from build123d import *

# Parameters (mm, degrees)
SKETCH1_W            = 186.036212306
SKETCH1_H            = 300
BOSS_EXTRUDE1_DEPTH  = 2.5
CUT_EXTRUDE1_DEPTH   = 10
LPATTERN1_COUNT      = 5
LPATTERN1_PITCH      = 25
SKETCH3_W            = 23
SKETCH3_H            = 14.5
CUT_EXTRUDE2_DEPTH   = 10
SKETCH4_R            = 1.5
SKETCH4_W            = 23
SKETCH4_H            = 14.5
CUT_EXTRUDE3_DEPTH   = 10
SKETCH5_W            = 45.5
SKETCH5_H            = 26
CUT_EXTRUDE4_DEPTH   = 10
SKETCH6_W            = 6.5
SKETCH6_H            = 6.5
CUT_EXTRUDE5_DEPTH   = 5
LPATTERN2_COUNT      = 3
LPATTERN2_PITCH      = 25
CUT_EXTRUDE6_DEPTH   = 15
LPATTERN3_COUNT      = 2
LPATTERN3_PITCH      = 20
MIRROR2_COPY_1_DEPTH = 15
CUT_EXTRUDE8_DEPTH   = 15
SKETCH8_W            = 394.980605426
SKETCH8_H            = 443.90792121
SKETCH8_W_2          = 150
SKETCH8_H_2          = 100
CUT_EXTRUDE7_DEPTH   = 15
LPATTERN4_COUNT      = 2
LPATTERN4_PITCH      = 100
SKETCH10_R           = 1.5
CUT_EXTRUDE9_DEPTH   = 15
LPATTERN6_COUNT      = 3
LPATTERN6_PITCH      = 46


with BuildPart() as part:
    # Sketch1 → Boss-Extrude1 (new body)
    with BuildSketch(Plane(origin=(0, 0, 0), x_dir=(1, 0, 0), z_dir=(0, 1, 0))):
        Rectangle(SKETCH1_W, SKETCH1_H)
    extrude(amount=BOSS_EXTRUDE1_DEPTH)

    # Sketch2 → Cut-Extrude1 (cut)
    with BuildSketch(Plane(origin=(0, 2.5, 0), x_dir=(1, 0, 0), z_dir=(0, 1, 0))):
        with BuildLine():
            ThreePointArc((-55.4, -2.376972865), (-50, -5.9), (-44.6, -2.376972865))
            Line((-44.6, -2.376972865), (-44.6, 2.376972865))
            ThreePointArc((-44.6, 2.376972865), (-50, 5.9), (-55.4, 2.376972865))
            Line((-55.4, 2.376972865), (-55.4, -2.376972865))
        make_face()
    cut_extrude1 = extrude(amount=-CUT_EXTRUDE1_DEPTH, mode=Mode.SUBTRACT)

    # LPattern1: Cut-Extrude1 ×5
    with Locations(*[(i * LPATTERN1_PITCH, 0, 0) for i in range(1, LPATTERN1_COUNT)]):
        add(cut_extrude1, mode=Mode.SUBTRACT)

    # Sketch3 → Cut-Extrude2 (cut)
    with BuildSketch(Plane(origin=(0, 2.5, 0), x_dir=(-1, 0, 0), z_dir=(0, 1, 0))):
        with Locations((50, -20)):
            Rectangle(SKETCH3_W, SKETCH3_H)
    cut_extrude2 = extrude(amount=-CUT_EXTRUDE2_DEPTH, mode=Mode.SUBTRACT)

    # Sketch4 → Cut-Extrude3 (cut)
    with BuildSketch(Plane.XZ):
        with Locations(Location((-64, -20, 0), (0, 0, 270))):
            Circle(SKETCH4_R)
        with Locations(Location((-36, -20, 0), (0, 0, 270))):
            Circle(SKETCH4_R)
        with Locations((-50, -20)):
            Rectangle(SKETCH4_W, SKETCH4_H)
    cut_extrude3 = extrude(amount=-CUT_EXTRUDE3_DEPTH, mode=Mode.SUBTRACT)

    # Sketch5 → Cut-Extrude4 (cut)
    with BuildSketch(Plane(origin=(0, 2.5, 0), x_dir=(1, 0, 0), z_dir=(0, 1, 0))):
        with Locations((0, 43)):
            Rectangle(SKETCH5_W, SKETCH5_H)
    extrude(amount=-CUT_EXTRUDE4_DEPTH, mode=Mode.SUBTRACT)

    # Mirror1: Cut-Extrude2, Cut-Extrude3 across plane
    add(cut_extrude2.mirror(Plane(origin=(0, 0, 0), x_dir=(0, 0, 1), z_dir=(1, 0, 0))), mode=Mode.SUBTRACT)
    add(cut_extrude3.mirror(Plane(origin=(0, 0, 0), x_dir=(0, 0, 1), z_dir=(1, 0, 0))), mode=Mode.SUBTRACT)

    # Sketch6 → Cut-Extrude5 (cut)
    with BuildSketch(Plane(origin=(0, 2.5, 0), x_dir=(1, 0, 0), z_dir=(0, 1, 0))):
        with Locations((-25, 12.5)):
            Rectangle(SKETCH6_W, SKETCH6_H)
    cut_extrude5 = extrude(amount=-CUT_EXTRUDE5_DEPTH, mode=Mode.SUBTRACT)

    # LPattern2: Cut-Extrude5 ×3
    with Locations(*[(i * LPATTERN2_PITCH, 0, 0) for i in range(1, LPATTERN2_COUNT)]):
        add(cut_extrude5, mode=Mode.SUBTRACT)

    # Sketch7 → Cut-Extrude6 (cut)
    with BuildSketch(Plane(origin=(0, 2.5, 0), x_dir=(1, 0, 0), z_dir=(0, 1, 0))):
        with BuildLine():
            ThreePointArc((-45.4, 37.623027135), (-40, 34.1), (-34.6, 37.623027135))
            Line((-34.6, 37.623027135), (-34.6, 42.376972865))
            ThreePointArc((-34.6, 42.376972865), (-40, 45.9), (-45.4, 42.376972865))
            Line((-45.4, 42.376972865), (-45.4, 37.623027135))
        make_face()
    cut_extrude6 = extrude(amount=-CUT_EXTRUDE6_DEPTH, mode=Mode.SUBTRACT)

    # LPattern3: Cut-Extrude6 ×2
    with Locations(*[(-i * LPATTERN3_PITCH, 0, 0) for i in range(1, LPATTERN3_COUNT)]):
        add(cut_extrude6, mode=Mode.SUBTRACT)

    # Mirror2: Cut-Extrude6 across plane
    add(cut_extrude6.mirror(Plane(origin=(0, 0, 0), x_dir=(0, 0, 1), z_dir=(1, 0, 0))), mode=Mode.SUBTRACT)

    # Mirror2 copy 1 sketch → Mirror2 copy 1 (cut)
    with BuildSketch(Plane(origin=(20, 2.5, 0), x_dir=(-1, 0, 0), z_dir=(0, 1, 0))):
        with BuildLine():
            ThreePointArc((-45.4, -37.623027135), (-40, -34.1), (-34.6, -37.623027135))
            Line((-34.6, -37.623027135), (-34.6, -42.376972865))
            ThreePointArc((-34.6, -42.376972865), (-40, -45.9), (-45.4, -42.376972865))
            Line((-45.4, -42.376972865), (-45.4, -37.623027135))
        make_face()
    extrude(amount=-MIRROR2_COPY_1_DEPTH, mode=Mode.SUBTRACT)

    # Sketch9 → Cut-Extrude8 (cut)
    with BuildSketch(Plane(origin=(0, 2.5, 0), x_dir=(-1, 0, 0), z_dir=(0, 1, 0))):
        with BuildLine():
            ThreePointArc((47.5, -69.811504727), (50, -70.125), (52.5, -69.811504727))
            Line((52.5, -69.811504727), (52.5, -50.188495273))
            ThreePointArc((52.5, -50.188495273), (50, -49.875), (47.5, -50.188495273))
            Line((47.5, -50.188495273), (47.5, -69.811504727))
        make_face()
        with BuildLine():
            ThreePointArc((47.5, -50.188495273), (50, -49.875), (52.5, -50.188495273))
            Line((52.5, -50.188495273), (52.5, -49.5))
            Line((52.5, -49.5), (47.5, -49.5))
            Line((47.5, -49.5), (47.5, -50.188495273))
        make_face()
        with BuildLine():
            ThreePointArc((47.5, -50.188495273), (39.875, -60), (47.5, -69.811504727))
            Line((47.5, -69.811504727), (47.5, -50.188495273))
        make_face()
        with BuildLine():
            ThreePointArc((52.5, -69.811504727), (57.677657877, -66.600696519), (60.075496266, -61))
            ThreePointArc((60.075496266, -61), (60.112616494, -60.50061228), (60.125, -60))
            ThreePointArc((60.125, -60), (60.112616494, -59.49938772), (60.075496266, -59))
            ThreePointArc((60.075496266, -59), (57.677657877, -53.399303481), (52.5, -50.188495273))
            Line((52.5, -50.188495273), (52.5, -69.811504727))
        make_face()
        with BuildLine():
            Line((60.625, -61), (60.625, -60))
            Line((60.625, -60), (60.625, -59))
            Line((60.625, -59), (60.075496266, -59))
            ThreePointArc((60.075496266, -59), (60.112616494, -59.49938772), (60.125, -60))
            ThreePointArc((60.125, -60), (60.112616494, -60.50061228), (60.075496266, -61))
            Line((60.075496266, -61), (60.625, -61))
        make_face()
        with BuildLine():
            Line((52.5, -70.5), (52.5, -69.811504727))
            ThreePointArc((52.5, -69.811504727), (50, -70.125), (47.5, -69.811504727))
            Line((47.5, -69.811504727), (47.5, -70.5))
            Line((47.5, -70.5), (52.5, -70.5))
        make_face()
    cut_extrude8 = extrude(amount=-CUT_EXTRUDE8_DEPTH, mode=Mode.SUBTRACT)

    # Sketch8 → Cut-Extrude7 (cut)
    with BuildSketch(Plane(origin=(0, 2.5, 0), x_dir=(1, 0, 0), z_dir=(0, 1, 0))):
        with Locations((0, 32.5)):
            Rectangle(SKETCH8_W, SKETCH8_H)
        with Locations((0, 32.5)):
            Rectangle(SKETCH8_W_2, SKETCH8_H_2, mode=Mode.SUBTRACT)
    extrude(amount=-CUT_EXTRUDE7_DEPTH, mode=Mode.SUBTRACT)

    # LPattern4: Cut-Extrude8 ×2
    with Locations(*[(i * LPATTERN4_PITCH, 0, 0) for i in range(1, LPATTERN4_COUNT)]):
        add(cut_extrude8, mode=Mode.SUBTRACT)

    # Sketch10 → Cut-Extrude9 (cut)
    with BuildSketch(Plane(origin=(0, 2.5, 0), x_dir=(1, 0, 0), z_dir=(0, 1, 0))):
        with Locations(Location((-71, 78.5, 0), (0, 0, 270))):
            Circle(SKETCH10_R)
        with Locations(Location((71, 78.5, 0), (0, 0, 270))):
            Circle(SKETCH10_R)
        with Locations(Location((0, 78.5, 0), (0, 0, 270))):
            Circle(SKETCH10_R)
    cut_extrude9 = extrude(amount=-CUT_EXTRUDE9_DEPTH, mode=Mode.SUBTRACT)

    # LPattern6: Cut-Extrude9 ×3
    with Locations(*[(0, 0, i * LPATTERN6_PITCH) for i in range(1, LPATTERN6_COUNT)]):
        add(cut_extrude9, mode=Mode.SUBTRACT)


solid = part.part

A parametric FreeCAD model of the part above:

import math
import FreeCAD as App
import Part
import Sketcher

V = App.Vector
Q = App.Units.Quantity


def add_polygon(sketch, points):
    """Adds a closed chain of lines whose ends are joined by coincident constraints."""
    first, n = sketch.GeometryCount, len(points)
    for a, b in zip(points, points[1:] + points[:1]):
        sketch.addGeometry(Part.LineSegment(App.Vector(*a, 0), App.Vector(*b, 0)), False)
    for i in range(n):
        sketch.addConstraint(Sketcher.Constraint("Coincident", first + i, 2, first + (i + 1) % n, 1))

doc = App.newDocument("Part")
body = doc.addObject("PartDesign::Body", "Body")

sketch1 = doc.addObject("Sketcher::SketchObject", "Sketch")
body.addObject(sketch1)
sketch1.AttachmentSupport = (doc.XZ_Plane, [""])
sketch1.MapMode = "FlatFace"
add_polygon(sketch1, [(-93, -150), (-93, 150), (93, 150), (93, -150)])
sketch1.addConstraint([
    Sketcher.Constraint("Vertical", 0),
    Sketcher.Constraint("Horizontal", 1),
    Sketcher.Constraint("Vertical", 2),
    Sketcher.Constraint("Horizontal", 3),
    Sketcher.Constraint("Symmetric", 0, 2, 2, 2, -1, 1),
    Sketcher.Constraint("DistanceY", 0, 1, 0, 2, Q("300 mm")),
    Sketcher.Constraint("DistanceX", 1, 1, 1, 2, Q("186.036212 mm")),
])
pad1 = doc.addObject("PartDesign::Pad", "Pad")
body.addObject(pad1)
pad1.Profile = sketch1
pad1.Length = 2.5
pad1.Reversed = True

sketch2 = doc.addObject("Sketcher::SketchObject", "Sketch001")
body.addObject(sketch2)
sketch2.AttachmentSupport = (doc.XZ_Plane, [""])
sketch2.MapMode = "FlatFace"
sketch2.AttachmentOffset = App.Placement(V(0, 0, -2.5), App.Rotation())
sketch2.addGeometry([
    Part.ArcOfCircle(Part.Circle(V(-50, 0, 0), V(0, 0, 1), 5.9), math.radians(24), math.radians(156)),
    Part.LineSegment(V(-44.6, 2.4, 0), V(-44.6, -2.4, 0)),
    Part.ArcOfCircle(Part.Circle(V(-50, 0, 0), V(0, 0, 1), 5.9), math.radians(-156), math.radians(-24)),
    Part.LineSegment(V(-55.4, -2.4, 0), V(-55.4, 2.4, 0)),
], False)
sketch2.addConstraint([
    Sketcher.Constraint("Coincident", 0, 1, 1, 1),
    Sketcher.Constraint("Coincident", 1, 2, 2, 2),
    Sketcher.Constraint("Coincident", 2, 1, 3, 1),
    Sketcher.Constraint("Coincident", 3, 2, 0, 2),
    Sketcher.Constraint("Vertical", 1),
    Sketcher.Constraint("Vertical", 3),
    Sketcher.Constraint("Coincident", 2, 3, 0, 3),
    Sketcher.Constraint("Equal", 0, 2),
    Sketcher.Constraint("PointOnObject", 0, 3, -1),
    Sketcher.Constraint("Horizontal", 1, 2, 2, 1),
    Sketcher.Constraint("Radius", 0, Q("5.9 mm")),
    Sketcher.Constraint("DistanceX", 0, 3, -1, 1, Q("50 mm")),
    Sketcher.Constraint("DistanceX", 0, 1, -1, 1, Q("44.6 mm")),
])
pocket1 = doc.addObject("PartDesign::Pocket", "Pocket")
body.addObject(pocket1)
pocket1.Profile = sketch2
pocket1.Length = 10
pocket1.Reversed = True
doc.recompute()

linearpattern = doc.addObject("PartDesign::LinearPattern", "LinearPattern")
body.addObject(linearpattern)
linearpattern.Originals = [pocket1]
linearpattern.Direction = (doc.X_Axis, [""])
linearpattern.Mode = "offset"
linearpattern.Offset = 25
linearpattern.Occurrences = 5
body.Tip = linearpattern

sketch3 = doc.addObject("Sketcher::SketchObject", "Sketch002")
body.addObject(sketch3)
sketch3.AttachmentSupport = (doc.XZ_Plane, [""])
sketch3.MapMode = "FlatFace"
sketch3.AttachmentOffset = App.Placement(V(0, 0, -2.5), App.Rotation())
add_polygon(sketch3, [(-38, -13), (-38, -27), (-62, -27), (-62, -13)])
sketch3.addConstraint([
    Sketcher.Constraint("Vertical", 0),
    Sketcher.Constraint("Horizontal", 1),
    Sketcher.Constraint("Vertical", 2),
    Sketcher.Constraint("Horizontal", 3),
    Sketcher.Constraint("DistanceX", 1, 2, 1, 1, Q("23 mm")),
    Sketcher.Constraint("DistanceY", 0, 2, 0, 1, Q("14.5 mm")),
    Sketcher.Constraint("DistanceX", 0, 2, -1, 1, Q("38.5 mm")),
    Sketcher.Constraint("DistanceY", 0, 2, -1, 1, Q("27.25 mm")),
])
pocket2 = doc.addObject("PartDesign::Pocket", "Pocket001")
body.addObject(pocket2)
pocket2.Profile = sketch3
pocket2.Length = 10
pocket2.Reversed = True

sketch4 = doc.addObject("Sketcher::SketchObject", "Sketch003")
body.addObject(sketch4)
sketch4.AttachmentSupport = (doc.XZ_Plane, [""])
sketch4.MapMode = "FlatFace"
sketch4.addGeometry(Part.Circle(V(-64, -20, 0), V(0, 0, 1), 1.5), False)
sketch4.addGeometry(Part.Circle(V(-36, -20, 0), V(0, 0, 1), 1.5), False)
add_polygon(sketch4, [(-61.5, -12.8), (-61.5, -27.2), (-38.5, -27.2), (-38.5, -12.8)])
sketch4.addConstraint([
    Sketcher.Constraint("Vertical", 2),
    Sketcher.Constraint("Horizontal", 3),
    Sketcher.Constraint("Vertical", 4),
    Sketcher.Constraint("Horizontal", 5),
    Sketcher.Constraint("Equal", 0, 1),
    Sketcher.Constraint("Horizontal", 0, 3, 1, 3),
    Sketcher.Constraint("Diameter", 0, Q("3 mm")),
    Sketcher.Constraint("DistanceX", 3, 1, 3, 2, Q("23 mm")),
    Sketcher.Constraint("DistanceY", 2, 2, 2, 1, Q("14.5 mm")),
    Sketcher.Constraint("DistanceX", 0, 3, -1, 1, Q("64 mm")),
    Sketcher.Constraint("DistanceY", 0, 3, -1, 1, Q("20 mm")),
    Sketcher.Constraint("DistanceX", 1, 3, -1, 1, Q("36 mm")),
    Sketcher.Constraint("DistanceX", 2, 2, -1, 1, Q("61.5 mm")),
    Sketcher.Constraint("DistanceY", 2, 2, -1, 1, Q("27.25 mm")),
])
pocket3 = doc.addObject("PartDesign::Pocket", "Pocket002")
body.addObject(pocket3)
pocket3.Profile = sketch4
pocket3.Length = 10

sketch5 = doc.addObject("Sketcher::SketchObject", "Sketch004")
body.addObject(sketch5)
sketch5.AttachmentSupport = (doc.XZ_Plane, [""])
sketch5.MapMode = "FlatFace"
sketch5.AttachmentOffset = App.Placement(V(0, 0, -2.5), App.Rotation())
add_polygon(sketch5, [(-23, -56), (-23, -30), (23, -30), (23, -56)])
sketch5.addConstraint([
    Sketcher.Constraint("Vertical", 0),
    Sketcher.Constraint("Horizontal", 1),
    Sketcher.Constraint("Vertical", 2),
    Sketcher.Constraint("Horizontal", 3),
    Sketcher.Constraint("DistanceY", 0, 1, 0, 2, Q("26 mm")),
    Sketcher.Constraint("DistanceX", 1, 1, 1, 2, Q("45.5 mm")),
    Sketcher.Constraint("DistanceY", 0, 2, -1, 1, Q("30 mm")),
    Sketcher.Constraint("DistanceX", 0, 2, -1, 1, Q("22.75 mm")),
])
pocket4 = doc.addObject("PartDesign::Pocket", "Pocket003")
body.addObject(pocket4)
pocket4.Profile = sketch5
pocket4.Length = 10
pocket4.Reversed = True
doc.recompute()

mirrored = doc.addObject("PartDesign::Mirrored", "Mirrored")
body.addObject(mirrored)
mirrored.Originals = [pocket2, pocket3]
mirrored.MirrorPlane = (doc.YZ_Plane, [""])
body.Tip = mirrored

sketch6 = doc.addObject("Sketcher::SketchObject", "Sketch005")
body.addObject(sketch6)
sketch6.AttachmentSupport = (doc.XZ_Plane, [""])
sketch6.MapMode = "FlatFace"
sketch6.AttachmentOffset = App.Placement(V(0, 0, -2.5), App.Rotation())
add_polygon(sketch6, [(-28, -16), (-28, -9), (-22, -9), (-22, -16)])
sketch6.addConstraint([
    Sketcher.Constraint("Vertical", 0),
    Sketcher.Constraint("Horizontal", 1),
    Sketcher.Constraint("Vertical", 2),
    Sketcher.Constraint("Horizontal", 3),
    Sketcher.Constraint("Equal", 3, 0),
    Sketcher.Constraint("DistanceX", 1, 1, 1, 2, Q("6.5 mm")),
    Sketcher.Constraint("DistanceX", 0, 2, -1, 1, Q("28.25 mm")),
    Sketcher.Constraint("DistanceY", 0, 2, -1, 1, Q("9.25 mm")),
])
pocket5 = doc.addObject("PartDesign::Pocket", "Pocket004")
body.addObject(pocket5)
pocket5.Profile = sketch6
pocket5.Length = 5
pocket5.Reversed = True
doc.recompute()

linearpattern2 = doc.addObject("PartDesign::LinearPattern", "LinearPattern001")
body.addObject(linearpattern2)
linearpattern2.Originals = [pocket5]
linearpattern2.Direction = (doc.X_Axis, [""])
linearpattern2.Mode = "offset"
linearpattern2.Offset = 25
linearpattern2.Occurrences = 3
body.Tip = linearpattern2

sketch7 = doc.addObject("Sketcher::SketchObject", "Sketch006")
body.addObject(sketch7)
sketch7.AttachmentSupport = (doc.XZ_Plane, [""])
sketch7.MapMode = "FlatFace"
sketch7.AttachmentOffset = App.Placement(V(0, 0, -2.5), App.Rotation())
sketch7.addGeometry([
    Part.ArcOfCircle(Part.Circle(V(-40, -40, 0), V(0, 0, 1), 5.9), math.radians(24), math.radians(156)),
    Part.LineSegment(V(-34.6, -37.6, 0), V(-34.6, -42.4, 0)),
    Part.ArcOfCircle(Part.Circle(V(-40, -40, 0), V(0, 0, 1), 5.9), math.radians(-156), math.radians(-24)),
    Part.LineSegment(V(-45.4, -42.4, 0), V(-45.4, -37.6, 0)),
], False)
sketch7.addConstraint([
    Sketcher.Constraint("Coincident", 0, 1, 1, 1),
    Sketcher.Constraint("Coincident", 1, 2, 2, 2),
    Sketcher.Constraint("Coincident", 2, 1, 3, 1),
    Sketcher.Constraint("Coincident", 3, 2, 0, 2),
    Sketcher.Constraint("Vertical", 1),
    Sketcher.Constraint("Vertical", 3),
    Sketcher.Constraint("Coincident", 2, 3, 0, 3),
    Sketcher.Constraint("Equal", 0, 2),
    Sketcher.Constraint("Horizontal", 1, 2, 2, 1),
    Sketcher.Constraint("Radius", 0, Q("5.9 mm")),
    Sketcher.Constraint("DistanceX", 0, 3, -1, 1, Q("40 mm")),
    Sketcher.Constraint("DistanceY", 0, 3, -1, 1, Q("40 mm")),
    Sketcher.Constraint("DistanceX", 0, 1, -1, 1, Q("34.6 mm")),
])
pocket6 = doc.addObject("PartDesign::Pocket", "Pocket005")
body.addObject(pocket6)
pocket6.Profile = sketch7
pocket6.Length = 15
pocket6.Reversed = True
doc.recompute()

linearpattern3 = doc.addObject("PartDesign::LinearPattern", "LinearPattern002")
body.addObject(linearpattern3)
linearpattern3.Originals = [pocket6]
linearpattern3.Direction = (doc.X_Axis, [""])
linearpattern3.Mode = "offset"
linearpattern3.Offset = 20
linearpattern3.Occurrences = 2
linearpattern3.Reversed = True
body.Tip = linearpattern3
doc.recompute()

mirrored2 = doc.addObject("PartDesign::Mirrored", "Mirrored001")
body.addObject(mirrored2)
mirrored2.Originals = [pocket6]
mirrored2.MirrorPlane = (doc.YZ_Plane, [""])
body.Tip = mirrored2

sketch8 = doc.addObject("Sketcher::SketchObject", "Sketch007")
body.addObject(sketch8)
sketch8.AttachmentSupport = (doc.XZ_Plane, [""])
sketch8.MapMode = "FlatFace"
sketch8.AttachmentOffset = App.Placement(V(0, 0, -2.5), App.Rotation())
sketch8.addGeometry([
    Part.ArcOfCircle(Part.Circle(V(60, -40, 0), V(0, 0, 1), 5.9), math.radians(24), math.radians(156)),
    Part.LineSegment(V(65.4, -37.6, 0), V(65.4, -42.4, 0)),
    Part.ArcOfCircle(Part.Circle(V(60, -40, 0), V(0, 0, 1), 5.9), math.radians(-156), math.radians(-24)),
    Part.LineSegment(V(54.6, -42.4, 0), V(54.6, -37.6, 0)),
], False)
sketch8.addConstraint([
    Sketcher.Constraint("Coincident", 0, 1, 1, 1),
    Sketcher.Constraint("Coincident", 1, 2, 2, 2),
    Sketcher.Constraint("Coincident", 2, 1, 3, 1),
    Sketcher.Constraint("Coincident", 3, 2, 0, 2),
    Sketcher.Constraint("Vertical", 1),
    Sketcher.Constraint("Vertical", 3),
    Sketcher.Constraint("Coincident", 2, 3, 0, 3),
    Sketcher.Constraint("Equal", 0, 2),
    Sketcher.Constraint("Horizontal", 1, 2, 2, 1),
    Sketcher.Constraint("Radius", 0, Q("5.9 mm")),
    Sketcher.Constraint("DistanceX", -1, 1, 0, 3, Q("60 mm")),
    Sketcher.Constraint("DistanceY", 0, 3, -1, 1, Q("40 mm")),
    Sketcher.Constraint("DistanceX", -1, 1, 0, 1, Q("65.4 mm")),
])
pocket7 = doc.addObject("PartDesign::Pocket", "Pocket006")
body.addObject(pocket7)
pocket7.Profile = sketch8
pocket7.Length = 15
pocket7.Reversed = True

sketch9 = doc.addObject("Sketcher::SketchObject", "Sketch008")
body.addObject(sketch9)
sketch9.AttachmentSupport = (doc.XZ_Plane, [""])
sketch9.MapMode = "FlatFace"
sketch9.AttachmentOffset = App.Placement(V(0, 0, -2.5), App.Rotation())
sketch9.addGeometry([
    Part.ArcOfCircle(Part.Circle(V(-50, -60, 0), V(0, 0, 1), 10.1), math.radians(-174), math.radians(-104)),
    Part.LineSegment(V(-60.1, -61, 0), V(-60.6, -61, 0)),
    Part.LineSegment(V(-60.6, -61, 0), V(-60.6, -59, 0)),
    Part.LineSegment(V(-60.6, -59, 0), V(-60.1, -59, 0)),
    Part.ArcOfCircle(Part.Circle(V(-50, -60, 0), V(0, 0, 1), 10.1), math.radians(104), math.radians(174)),
    Part.LineSegment(V(-52.5, -50.2, 0), V(-52.5, -49.5, 0)),
    Part.LineSegment(V(-52.5, -49.5, 0), V(-47.5, -49.5, 0)),
    Part.LineSegment(V(-47.5, -49.5, 0), V(-47.5, -50.2, 0)),
    Part.ArcOfCircle(Part.Circle(V(-50, -60, 0), V(0, 0, 1), 10.1), math.radians(-76), math.radians(76)),
    Part.LineSegment(V(-47.5, -69.8, 0), V(-47.5, -70.5, 0)),
    Part.LineSegment(V(-47.5, -70.5, 0), V(-52.5, -70.5, 0)),
    Part.LineSegment(V(-52.5, -70.5, 0), V(-52.5, -69.8, 0)),
], False)
sketch9.addConstraint([
    Sketcher.Constraint("Coincident", 0, 1, 1, 1),
    Sketcher.Constraint("Coincident", 1, 2, 2, 1),
    Sketcher.Constraint("Coincident", 2, 2, 3, 1),
    Sketcher.Constraint("Coincident", 3, 2, 4, 2),
    Sketcher.Constraint("Coincident", 4, 1, 5, 1),
    Sketcher.Constraint("Coincident", 5, 2, 6, 1),
    Sketcher.Constraint("Coincident", 6, 2, 7, 1),
    Sketcher.Constraint("Coincident", 7, 2, 8, 2),
    Sketcher.Constraint("Coincident", 8, 1, 9, 1),
    Sketcher.Constraint("Coincident", 9, 2, 10, 1),
    Sketcher.Constraint("Coincident", 10, 2, 11, 1),
    Sketcher.Constraint("Coincident", 11, 2, 0, 2),
    Sketcher.Constraint("Horizontal", 1),
    Sketcher.Constraint("Vertical", 2),
    Sketcher.Constraint("Horizontal", 3),
    Sketcher.Constraint("Vertical", 5),
    Sketcher.Constraint("Horizontal", 6),
    Sketcher.Constraint("Vertical", 7),
    Sketcher.Constraint("Vertical", 9),
    Sketcher.Constraint("Horizontal", 10),
    Sketcher.Constraint("Vertical", 11),
    Sketcher.Constraint("Coincident", 4, 3, 0, 3),
    Sketcher.Constraint("Coincident", 8, 3, 0, 3),
    Sketcher.Constraint("Equal", 0, 4),
    Sketcher.Constraint("Equal", 4, 8),
    Sketcher.Constraint("Horizontal", 4, 1, 7, 2),
    Sketcher.Constraint("Horizontal", 8, 1, 11, 2),
    Sketcher.Constraint("Vertical", 0, 1, 3, 2),
    Sketcher.Constraint("Vertical", 7, 2, 8, 1),
    Sketcher.Constraint("Equal", 7, 9),
    Sketcher.Constraint("DistanceX", 6, 1, 6, 2, Q("5 mm")),
    Sketcher.Constraint("DistanceY", 2, 1, 2, 2, Q("2 mm")),
    Sketcher.Constraint("DistanceX", 0, 3, -1, 1, Q("50 mm")),
    Sketcher.Constraint("DistanceY", 0, 3, -1, 1, Q("60 mm")),
    Sketcher.Constraint("Radius", 0, Q("10.125 mm")),
    Sketcher.Constraint("DistanceY", 5, 2, -1, 1, Q("49.5 mm")),
    Sketcher.Constraint("DistanceX", 1, 2, -1, 1, Q("60.625 mm")),
])
pocket8 = doc.addObject("PartDesign::Pocket", "Pocket007")
body.addObject(pocket8)
pocket8.Profile = sketch9
pocket8.Length = 15
pocket8.Reversed = True

sketch10 = doc.addObject("Sketcher::SketchObject", "Sketch009")
body.addObject(sketch10)
sketch10.AttachmentSupport = (doc.XZ_Plane, [""])
sketch10.MapMode = "FlatFace"
sketch10.AttachmentOffset = App.Placement(V(0, 0, -2.5), App.Rotation())
add_polygon(sketch10, [(-197, -254), (-197, 189), (197, 189), (197, -254)])
add_polygon(sketch10, [(75, 18), (-75, 18), (-75, -82), (75, -82)])
sketch10.addConstraint([
    Sketcher.Constraint("Vertical", 0),
    Sketcher.Constraint("Horizontal", 1),
    Sketcher.Constraint("Vertical", 2),
    Sketcher.Constraint("Horizontal", 3),
    Sketcher.Constraint("Horizontal", 4),
    Sketcher.Constraint("Vertical", 5),
    Sketcher.Constraint("Horizontal", 6),
    Sketcher.Constraint("Vertical", 7),
    Sketcher.Constraint("DistanceX", 4, 2, 4, 1, Q("150 mm")),
    Sketcher.Constraint("DistanceY", 5, 2, 5, 1, Q("100 mm")),
    Sketcher.Constraint("DistanceX", 4, 2, -1, 1, Q("75 mm")),
    Sketcher.Constraint("DistanceY", -1, 1, 4, 2, Q("17.5 mm")),
    Sketcher.Constraint("DistanceY", 0, 1, 0, 2, Q("443.907921 mm")),
    Sketcher.Constraint("DistanceX", 1, 1, 1, 2, Q("394.980605 mm")),
    Sketcher.Constraint("DistanceY", -1, 1, 0, 2, Q("189.453961 mm")),
    Sketcher.Constraint("DistanceX", 0, 2, -1, 1, Q("197.490303 mm")),
])
pocket9 = doc.addObject("PartDesign::Pocket", "Pocket008")
body.addObject(pocket9)
pocket9.Profile = sketch10
pocket9.Length = 15
pocket9.Reversed = True
doc.recompute()

linearpattern4 = doc.addObject("PartDesign::LinearPattern", "LinearPattern003")
body.addObject(linearpattern4)
linearpattern4.Originals = [pocket8]
linearpattern4.Direction = (doc.X_Axis, [""])
linearpattern4.Mode = "offset"
linearpattern4.Offset = 100
linearpattern4.Occurrences = 2
body.Tip = linearpattern4

sketch11 = doc.addObject("Sketcher::SketchObject", "Sketch010")
body.addObject(sketch11)
sketch11.AttachmentSupport = (doc.XZ_Plane, [""])
sketch11.MapMode = "FlatFace"
sketch11.AttachmentOffset = App.Placement(V(0, 0, -2.5), App.Rotation())
sketch11.addGeometry([
    Part.Circle(V(-71, -78.5, 0), V(0, 0, 1), 1.5),
    Part.Circle(V(71, -78.5, 0), V(0, 0, 1), 1.5),
    Part.Circle(V(0, -78.5, 0), V(0, 0, 1), 1.5),
], False)
sketch11.addConstraint([
    Sketcher.Constraint("Equal", 0, 1),
    Sketcher.Constraint("Equal", 1, 2),
    Sketcher.Constraint("Symmetric", 0, 3, 1, 3, -2),
    Sketcher.Constraint("PointOnObject", 2, 3, -2),
    Sketcher.Constraint("Horizontal", 1, 3, 2, 3),
    Sketcher.Constraint("Diameter", 0, Q("3 mm")),
    Sketcher.Constraint("DistanceX", 0, 3, -1, 1, Q("71 mm")),
    Sketcher.Constraint("DistanceY", 0, 3, -1, 1, Q("78.5 mm")),
])
pocket10 = doc.addObject("PartDesign::Pocket", "Pocket009")
body.addObject(pocket10)
pocket10.Profile = sketch11
pocket10.Length = 15
pocket10.Reversed = True
doc.recompute()

linearpattern5 = doc.addObject("PartDesign::LinearPattern", "LinearPattern004")
body.addObject(linearpattern5)
linearpattern5.Originals = [pocket10]
linearpattern5.Direction = (doc.Z_Axis, [""])
linearpattern5.Mode = "offset"
linearpattern5.Offset = 46
linearpattern5.Occurrences = 3
body.Tip = linearpattern5

doc.recompute()
